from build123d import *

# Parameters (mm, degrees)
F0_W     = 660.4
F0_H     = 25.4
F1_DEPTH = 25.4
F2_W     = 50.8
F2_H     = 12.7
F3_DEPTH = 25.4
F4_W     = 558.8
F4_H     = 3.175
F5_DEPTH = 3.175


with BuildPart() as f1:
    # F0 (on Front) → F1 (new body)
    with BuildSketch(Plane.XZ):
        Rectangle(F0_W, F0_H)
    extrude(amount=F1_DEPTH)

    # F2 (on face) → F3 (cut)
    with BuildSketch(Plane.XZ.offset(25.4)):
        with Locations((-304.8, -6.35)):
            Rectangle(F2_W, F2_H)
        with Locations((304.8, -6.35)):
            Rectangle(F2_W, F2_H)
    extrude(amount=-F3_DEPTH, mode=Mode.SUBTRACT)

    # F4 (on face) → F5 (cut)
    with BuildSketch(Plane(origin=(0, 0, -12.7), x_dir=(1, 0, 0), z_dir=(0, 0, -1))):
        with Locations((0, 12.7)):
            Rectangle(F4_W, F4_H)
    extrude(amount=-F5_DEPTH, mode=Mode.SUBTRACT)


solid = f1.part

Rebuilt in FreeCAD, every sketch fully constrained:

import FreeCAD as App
import Part
import Sketcher
Q = App.Units.Quantity

doc = App.newDocument("Part")
body = doc.addObject("PartDesign::Body", "Body")

# Sketch on XZ plane
sketch1 = body.newObject("Sketcher::SketchObject", "Sketch")
sketch1.AttachmentSupport = (doc.getObject("XZ_Plane"), [""])
sketch1.MapMode = "FlatFace"
sketch1.addGeometry(Part.LineSegment(App.Vector(-330, 13, 0), App.Vector(-330, -13, 0)), False)
sketch1.addGeometry(Part.LineSegment(App.Vector(-330, -13, 0), App.Vector(330, -13, 0)), False)
sketch1.addGeometry(Part.LineSegment(App.Vector(330, -13, 0), App.Vector(330, 13, 0)), False)
sketch1.addGeometry(Part.LineSegment(App.Vector(330, 13, 0), App.Vector(-330, 13, 0)), False)
sketch1.addConstraint(Sketcher.Constraint("Coincident", 0, 2, 1, 1))
sketch1.addConstraint(Sketcher.Constraint("Coincident", 1, 2, 2, 1))
sketch1.addConstraint(Sketcher.Constraint("Coincident", 2, 2, 3, 1))
sketch1.addConstraint(Sketcher.Constraint("Coincident", 3, 2, 0, 1))
sketch1.addConstraint(Sketcher.Constraint("Vertical", 0))
sketch1.addConstraint(Sketcher.Constraint("Horizontal", 1))
sketch1.addConstraint(Sketcher.Constraint("Vertical", 2))
sketch1.addConstraint(Sketcher.Constraint("Horizontal", 3))
sketch1.addConstraint(Sketcher.Constraint("Symmetric", 0, 2, 2, 2, -1, 1))
sketch1.addConstraint(Sketcher.Constraint("DistanceX", 1, 1, 1, 2, Q("26 in")))
sketch1.addConstraint(Sketcher.Constraint("DistanceY", 0, 2, 0, 1, Q("1 in")))
pad1 = body.newObject("PartDesign::Pad", "Pad")
pad1.Profile = sketch1
pad1.Length = Q("1 in")

# Sketch on XZ plane
sketch2 = body.newObject("Sketcher::SketchObject", "Sketch001")
sketch2.AttachmentSupport = (doc.getObject("XZ_Plane"), [""])
sketch2.MapMode = "FlatFace"
sketch2.AttachmentOffset = App.Placement(App.Vector(0, 0, 1 * 25.4), App.Rotation())
sketch2.addGeometry(Part.LineSegment(App.Vector(-330, 0, 0), App.Vector(-330, -13, 0)), False)
sketch2.addGeometry(Part.LineSegment(App.Vector(-330, -13, 0), App.Vector(-279, -13, 0)), False)
sketch2.addGeometry(Part.LineSegment(App.Vector(-279, -13, 0), App.Vector(-279, 0, 0)), False)
sketch2.addGeometry(Part.LineSegment(App.Vector(-279, 0, 0), App.Vector(-330, 0, 0)), False)
sketch2.addGeometry(Part.LineSegment(App.Vector(279, 0, 0), App.Vector(279, -13, 0)), False)
sketch2.addGeometry(Part.LineSegment(App.Vector(279, -13, 0), App.Vector(330, -13, 0)), False)
sketch2.addGeometry(Part.LineSegment(App.Vector(330, -13, 0), App.Vector(330, 0, 0)), False)
sketch2.addGeometry(Part.LineSegment(App.Vector(330, 0, 0), App.Vector(279, 0, 0)), False)
sketch2.addConstraint(Sketcher.Constraint("Coincident", 0, 2, 1, 1))
sketch2.addConstraint(Sketcher.Constraint("Coincident", 1, 2, 2, 1))
sketch2.addConstraint(Sketcher.Constraint("Coincident", 2, 2, 3, 1))
sketch2.addConstraint(Sketcher.Constraint("Coincident", 3, 2, 0, 1))
sketch2.addConstraint(Sketcher.Constraint("Coincident", 4, 2, 5, 1))
sketch2.addConstraint(Sketcher.Constraint("Coincident", 5, 2, 6, 1))
sketch2.addConstraint(Sketcher.Constraint("Coincident", 6, 2, 7, 1))
sketch2.addConstraint(Sketcher.Constraint("Coincident", 7, 2, 4, 1))
sketch2.addConstraint(Sketcher.Constraint("Vertical", 0))
sketch2.addConstraint(Sketcher.Constraint("Horizontal", 1))
sketch2.addConstraint(Sketcher.Constraint("Vertical", 2))
sketch2.addConstraint(Sketcher.Constraint("Horizontal", 3))
sketch2.addConstraint(Sketcher.Constraint("Vertical", 4))
sketch2.addConstraint(Sketcher.Constraint("Horizontal", 5))
sketch2.addConstraint(Sketcher.Constraint("Vertical", 6))
sketch2.addConstraint(Sketcher.Constraint("Horizontal", 7))
sketch2.addConstraint(Sketcher.Constraint("Symmetric", 3, 2, 6, 2, -1, 1))
sketch2.addConstraint(Sketcher.Constraint("Symmetric", 1, 2, 4, 2, -2))
sketch2.addConstraint(Sketcher.Constraint("PointOnObject", 2, 2, -1))
sketch2.addConstraint(Sketcher.Constraint("DistanceX", 1, 1, 1, 2, Q("2 in")))
sketch2.addConstraint(Sketcher.Constraint("DistanceY", 0, 2, 0, 1, Q("0.5 in")))
sketch2.addConstraint(Sketcher.Constraint("DistanceX", 0, 2, -1, 1, Q("13 in")))
pocket1 = body.newObject("PartDesign::Pocket", "Pocket")
pocket1.Profile = sketch2
pocket1.Length = Q("1 in")

# Sketch on XY plane
sketch3 = body.newObject("Sketcher::SketchObject", "Sketch002")
sketch3.AttachmentSupport = (doc.getObject("XY_Plane"), [""])
sketch3.MapMode = "FlatFace"
sketch3.AttachmentOffset = App.Placement(App.Vector(0, 0, -0.5 * 25.4), App.Rotation())
sketch3.addGeometry(Part.LineSegment(App.Vector(-279.4, -14.3, 0), App.Vector(-279.4, -11.1, 0)), False)
sketch3.addGeometry(Part.LineSegment(App.Vector(-279.4, -11.1, 0), App.Vector(279.4, -11.1, 0)), False)
sketch3.addGeometry(Part.LineSegment(App.Vector(279.4, -11.1, 0), App.Vector(279.4, -14.3, 0)), False)
sketch3.addGeometry(Part.LineSegment(App.Vector(279.4, -14.3, 0), App.Vector(-279.4, -14.3, 0)), False)
sketch3.addConstraint(Sketcher.Constraint("Coincident", 0, 2, 1, 1))
sketch3.addConstraint(Sketcher.Constraint("Coincident", 1, 2, 2, 1))
sketch3.addConstraint(Sketcher.Constraint("Coincident", 2, 2, 3, 1))
sketch3.addConstraint(Sketcher.Constraint("Coincident", 3, 2, 0, 1))
sketch3.addConstraint(Sketcher.Constraint("Vertical", 0))
sketch3.addConstraint(Sketcher.Constraint("Horizontal", 1))
sketch3.addConstraint(Sketcher.Constraint("Vertical", 2))
sketch3.addConstraint(Sketcher.Constraint("Horizontal", 3))
sketch3.addConstraint(Sketcher.Constraint("DistanceX", 1, 1, 1, 2, Q("22 in")))
sketch3.addConstraint(Sketcher.Constraint("DistanceX", 0, 2, -1, 1, Q("11 in")))
sketch3.addConstraint(Sketcher.Constraint("DistanceY", 0, 1, 0, 2, Q("0.125 in")))
sketch3.addConstraint(Sketcher.Constraint("DistanceY", 0, 2, -1, 1, Q("0.4375 in")))
pocket2 = body.newObject("PartDesign::Pocket", "Pocket001")
pocket2.Profile = sketch3
pocket2.Length = Q("0.125 in")
pocket2.Reversed = True

doc.recompute()
